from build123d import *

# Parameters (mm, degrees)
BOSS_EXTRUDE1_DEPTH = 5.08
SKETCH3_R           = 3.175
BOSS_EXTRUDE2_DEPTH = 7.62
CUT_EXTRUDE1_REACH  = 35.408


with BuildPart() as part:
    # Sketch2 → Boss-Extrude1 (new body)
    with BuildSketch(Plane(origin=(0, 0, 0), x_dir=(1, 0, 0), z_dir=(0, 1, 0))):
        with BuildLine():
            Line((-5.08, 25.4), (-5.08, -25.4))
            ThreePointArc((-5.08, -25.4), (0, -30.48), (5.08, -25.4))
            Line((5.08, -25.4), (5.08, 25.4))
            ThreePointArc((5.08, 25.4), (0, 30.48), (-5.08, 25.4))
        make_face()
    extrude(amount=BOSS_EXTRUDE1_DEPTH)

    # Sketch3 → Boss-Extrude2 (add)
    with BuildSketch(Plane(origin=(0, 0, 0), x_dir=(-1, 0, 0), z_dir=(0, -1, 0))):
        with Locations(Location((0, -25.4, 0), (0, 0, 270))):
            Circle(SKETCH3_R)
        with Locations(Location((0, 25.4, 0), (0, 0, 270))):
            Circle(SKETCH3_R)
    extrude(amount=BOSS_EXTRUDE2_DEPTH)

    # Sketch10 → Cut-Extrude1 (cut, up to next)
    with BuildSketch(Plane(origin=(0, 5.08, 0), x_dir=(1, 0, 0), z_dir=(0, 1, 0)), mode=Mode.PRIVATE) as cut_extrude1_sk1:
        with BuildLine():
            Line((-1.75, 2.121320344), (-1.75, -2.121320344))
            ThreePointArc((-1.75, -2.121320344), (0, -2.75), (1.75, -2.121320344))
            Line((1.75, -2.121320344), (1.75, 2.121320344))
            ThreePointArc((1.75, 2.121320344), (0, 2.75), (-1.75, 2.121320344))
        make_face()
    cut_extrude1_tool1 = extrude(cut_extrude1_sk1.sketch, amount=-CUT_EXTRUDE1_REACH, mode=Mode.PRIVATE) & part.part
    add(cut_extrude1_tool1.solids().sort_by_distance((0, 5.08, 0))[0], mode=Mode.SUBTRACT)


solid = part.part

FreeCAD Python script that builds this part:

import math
import FreeCAD as App
import Part
import Sketcher
from FreeCAD import Vector
Q = App.Units.Quantity

doc = App.newDocument("Part")
body = doc.addObject("PartDesign::Body", "Body")

sketch1 = doc.addObject("Sketcher::SketchObject", "Sketch")
body.addObject(sketch1)
sketch1.AttachmentSupport = (doc.XZ_Plane, [""])
sketch1.MapMode = "FlatFace"
sketch1.addGeometry(Part.LineSegment(Vector(-5, -25, 0), Vector(-5, 25, 0)), False)
sketch1.addGeometry(Part.ArcOfCircle(Part.Circle(Vector(0, 25, 0), Vector(0, 0, 1), 5), math.radians(0), math.radians(180)), False)
sketch1.addGeometry(Part.LineSegment(Vector(5, 25, 0), Vector(5, -25, 0)), False)
sketch1.addGeometry(Part.ArcOfCircle(Part.Circle(Vector(0, -25, 0), Vector(0, 0, 1), 5), math.radians(180), math.radians(360)), False)
sketch1.addConstraint(Sketcher.Constraint("Tangent", 0, 2, 1, 2))
sketch1.addConstraint(Sketcher.Constraint("Tangent", 1, 1, 2, 1))
sketch1.addConstraint(Sketcher.Constraint("Tangent", 2, 2, 3, 2))
sketch1.addConstraint(Sketcher.Constraint("Tangent", 3, 1, 0, 1))
sketch1.addConstraint(Sketcher.Constraint("Vertical", 0))
sketch1.addConstraint(Sketcher.Constraint("Vertical", 2))
sketch1.addConstraint(Sketcher.Constraint("Symmetric", 1, 3, 3, 3, -1, 1))
sketch1.addConstraint(Sketcher.Constraint("Radius", 1, Q("0.2 in")))
sketch1.addConstraint(Sketcher.Constraint("DistanceY", 0, 1, 0, 2, Q("2 in")))
pad1 = doc.addObject("PartDesign::Pad", "Pad")
body.addObject(pad1)
pad1.Profile = sketch1
pad1.Length = Q("0.2 in")
pad1.Reversed = True

sketch2 = doc.addObject("Sketcher::SketchObject", "Sketch001")
body.addObject(sketch2)
sketch2.AttachmentSupport = (doc.XZ_Plane, [""])
sketch2.MapMode = "FlatFace"
sketch2.addGeometry(Part.Circle(Vector(0, 25.4, 0), Vector(0, 0, 1), 3.2), False)
sketch2.addGeometry(Part.Circle(Vector(0, -25.4, 0), Vector(0, 0, 1), 3.2), False)
sketch2.addConstraint(Sketcher.Constraint("Equal", 0, 1))
sketch2.addConstraint(Sketcher.Constraint("Symmetric", 0, 3, 1, 3, -1, 1))
sketch2.addConstraint(Sketcher.Constraint("PointOnObject", 0, 3, -2))
sketch2.addConstraint(Sketcher.Constraint("Diameter", 0, Q("0.25 in")))
sketch2.addConstraint(Sketcher.Constraint("DistanceY", -1, 1, 0, 3, Q("1 in")))
pad2 = doc.addObject("PartDesign::Pad", "Pad001")
body.addObject(pad2)
pad2.Profile = sketch2
pad2.Length = Q("0.3 in")

sketch3 = doc.addObject("Sketcher::SketchObject", "Sketch002")
body.addObject(sketch3)
sketch3.AttachmentSupport = (doc.XZ_Plane, [""])
sketch3.MapMode = "FlatFace"
sketch3.AttachmentOffset = App.Placement(Vector(0, 0, -0.2 * 25.4), App.Rotation())
sketch3.addGeometry(Part.LineSegment(Vector(-1.8, -2.1, 0), Vector(-1.8, 2.1, 0)), False)
sketch3.addGeometry(Part.ArcOfCircle(Part.Circle(Vector(0, 0, 0), Vector(0, 0, 1), 2.8), math.radians(50), math.radians(130)), False)
sketch3.addGeometry(Part.LineSegment(Vector(1.8, 2.1, 0), Vector(1.8, -2.1, 0)), False)
sketch3.addGeometry(Part.ArcOfCircle(Part.Circle(Vector(0, 0, 0), Vector(0, 0, 1), 2.8), math.radians(-130), math.radians(-50)), False)
sketch3.addConstraint(Sketcher.Constraint("Coincident", 0, 2, 1, 2))
sketch3.addConstraint(Sketcher.Constraint("Coincident", 1, 1, 2, 1))
sketch3.addConstraint(Sketcher.Constraint("Coincident", 2, 2, 3, 2))
sketch3.addConstraint(Sketcher.Constraint("Coincident", 3, 1, 0, 1))
sketch3.addConstraint(Sketcher.Constraint("Vertical", 0))
sketch3.addConstraint(Sketcher.Constraint("Vertical", 2))
sketch3.addConstraint(Sketcher.Constraint("Coincident", 1, 3, -1, 1))
sketch3.addConstraint(Sketcher.Constraint("Coincident", 3, 3, -1, 1))
sketch3.addConstraint(Sketcher.Constraint("Equal", 1, 3))
sketch3.addConstraint(Sketcher.Constraint("Horizontal", 0, 2, 1, 1))
sketch3.addConstraint(Sketcher.Constraint("Radius", 1, Q("2.75 mm")))
sketch3.addConstraint(Sketcher.Constraint("DistanceY", 0, 1, 0, 2, Q("4.242641 mm")))
pocket1 = doc.addObject("PartDesign::Pocket", "Pocket")
body.addObject(pocket1)
pocket1.Profile = sketch3
pocket1.Type = "UpToFirst"
pocket1.Reversed = True

doc.recompute()
